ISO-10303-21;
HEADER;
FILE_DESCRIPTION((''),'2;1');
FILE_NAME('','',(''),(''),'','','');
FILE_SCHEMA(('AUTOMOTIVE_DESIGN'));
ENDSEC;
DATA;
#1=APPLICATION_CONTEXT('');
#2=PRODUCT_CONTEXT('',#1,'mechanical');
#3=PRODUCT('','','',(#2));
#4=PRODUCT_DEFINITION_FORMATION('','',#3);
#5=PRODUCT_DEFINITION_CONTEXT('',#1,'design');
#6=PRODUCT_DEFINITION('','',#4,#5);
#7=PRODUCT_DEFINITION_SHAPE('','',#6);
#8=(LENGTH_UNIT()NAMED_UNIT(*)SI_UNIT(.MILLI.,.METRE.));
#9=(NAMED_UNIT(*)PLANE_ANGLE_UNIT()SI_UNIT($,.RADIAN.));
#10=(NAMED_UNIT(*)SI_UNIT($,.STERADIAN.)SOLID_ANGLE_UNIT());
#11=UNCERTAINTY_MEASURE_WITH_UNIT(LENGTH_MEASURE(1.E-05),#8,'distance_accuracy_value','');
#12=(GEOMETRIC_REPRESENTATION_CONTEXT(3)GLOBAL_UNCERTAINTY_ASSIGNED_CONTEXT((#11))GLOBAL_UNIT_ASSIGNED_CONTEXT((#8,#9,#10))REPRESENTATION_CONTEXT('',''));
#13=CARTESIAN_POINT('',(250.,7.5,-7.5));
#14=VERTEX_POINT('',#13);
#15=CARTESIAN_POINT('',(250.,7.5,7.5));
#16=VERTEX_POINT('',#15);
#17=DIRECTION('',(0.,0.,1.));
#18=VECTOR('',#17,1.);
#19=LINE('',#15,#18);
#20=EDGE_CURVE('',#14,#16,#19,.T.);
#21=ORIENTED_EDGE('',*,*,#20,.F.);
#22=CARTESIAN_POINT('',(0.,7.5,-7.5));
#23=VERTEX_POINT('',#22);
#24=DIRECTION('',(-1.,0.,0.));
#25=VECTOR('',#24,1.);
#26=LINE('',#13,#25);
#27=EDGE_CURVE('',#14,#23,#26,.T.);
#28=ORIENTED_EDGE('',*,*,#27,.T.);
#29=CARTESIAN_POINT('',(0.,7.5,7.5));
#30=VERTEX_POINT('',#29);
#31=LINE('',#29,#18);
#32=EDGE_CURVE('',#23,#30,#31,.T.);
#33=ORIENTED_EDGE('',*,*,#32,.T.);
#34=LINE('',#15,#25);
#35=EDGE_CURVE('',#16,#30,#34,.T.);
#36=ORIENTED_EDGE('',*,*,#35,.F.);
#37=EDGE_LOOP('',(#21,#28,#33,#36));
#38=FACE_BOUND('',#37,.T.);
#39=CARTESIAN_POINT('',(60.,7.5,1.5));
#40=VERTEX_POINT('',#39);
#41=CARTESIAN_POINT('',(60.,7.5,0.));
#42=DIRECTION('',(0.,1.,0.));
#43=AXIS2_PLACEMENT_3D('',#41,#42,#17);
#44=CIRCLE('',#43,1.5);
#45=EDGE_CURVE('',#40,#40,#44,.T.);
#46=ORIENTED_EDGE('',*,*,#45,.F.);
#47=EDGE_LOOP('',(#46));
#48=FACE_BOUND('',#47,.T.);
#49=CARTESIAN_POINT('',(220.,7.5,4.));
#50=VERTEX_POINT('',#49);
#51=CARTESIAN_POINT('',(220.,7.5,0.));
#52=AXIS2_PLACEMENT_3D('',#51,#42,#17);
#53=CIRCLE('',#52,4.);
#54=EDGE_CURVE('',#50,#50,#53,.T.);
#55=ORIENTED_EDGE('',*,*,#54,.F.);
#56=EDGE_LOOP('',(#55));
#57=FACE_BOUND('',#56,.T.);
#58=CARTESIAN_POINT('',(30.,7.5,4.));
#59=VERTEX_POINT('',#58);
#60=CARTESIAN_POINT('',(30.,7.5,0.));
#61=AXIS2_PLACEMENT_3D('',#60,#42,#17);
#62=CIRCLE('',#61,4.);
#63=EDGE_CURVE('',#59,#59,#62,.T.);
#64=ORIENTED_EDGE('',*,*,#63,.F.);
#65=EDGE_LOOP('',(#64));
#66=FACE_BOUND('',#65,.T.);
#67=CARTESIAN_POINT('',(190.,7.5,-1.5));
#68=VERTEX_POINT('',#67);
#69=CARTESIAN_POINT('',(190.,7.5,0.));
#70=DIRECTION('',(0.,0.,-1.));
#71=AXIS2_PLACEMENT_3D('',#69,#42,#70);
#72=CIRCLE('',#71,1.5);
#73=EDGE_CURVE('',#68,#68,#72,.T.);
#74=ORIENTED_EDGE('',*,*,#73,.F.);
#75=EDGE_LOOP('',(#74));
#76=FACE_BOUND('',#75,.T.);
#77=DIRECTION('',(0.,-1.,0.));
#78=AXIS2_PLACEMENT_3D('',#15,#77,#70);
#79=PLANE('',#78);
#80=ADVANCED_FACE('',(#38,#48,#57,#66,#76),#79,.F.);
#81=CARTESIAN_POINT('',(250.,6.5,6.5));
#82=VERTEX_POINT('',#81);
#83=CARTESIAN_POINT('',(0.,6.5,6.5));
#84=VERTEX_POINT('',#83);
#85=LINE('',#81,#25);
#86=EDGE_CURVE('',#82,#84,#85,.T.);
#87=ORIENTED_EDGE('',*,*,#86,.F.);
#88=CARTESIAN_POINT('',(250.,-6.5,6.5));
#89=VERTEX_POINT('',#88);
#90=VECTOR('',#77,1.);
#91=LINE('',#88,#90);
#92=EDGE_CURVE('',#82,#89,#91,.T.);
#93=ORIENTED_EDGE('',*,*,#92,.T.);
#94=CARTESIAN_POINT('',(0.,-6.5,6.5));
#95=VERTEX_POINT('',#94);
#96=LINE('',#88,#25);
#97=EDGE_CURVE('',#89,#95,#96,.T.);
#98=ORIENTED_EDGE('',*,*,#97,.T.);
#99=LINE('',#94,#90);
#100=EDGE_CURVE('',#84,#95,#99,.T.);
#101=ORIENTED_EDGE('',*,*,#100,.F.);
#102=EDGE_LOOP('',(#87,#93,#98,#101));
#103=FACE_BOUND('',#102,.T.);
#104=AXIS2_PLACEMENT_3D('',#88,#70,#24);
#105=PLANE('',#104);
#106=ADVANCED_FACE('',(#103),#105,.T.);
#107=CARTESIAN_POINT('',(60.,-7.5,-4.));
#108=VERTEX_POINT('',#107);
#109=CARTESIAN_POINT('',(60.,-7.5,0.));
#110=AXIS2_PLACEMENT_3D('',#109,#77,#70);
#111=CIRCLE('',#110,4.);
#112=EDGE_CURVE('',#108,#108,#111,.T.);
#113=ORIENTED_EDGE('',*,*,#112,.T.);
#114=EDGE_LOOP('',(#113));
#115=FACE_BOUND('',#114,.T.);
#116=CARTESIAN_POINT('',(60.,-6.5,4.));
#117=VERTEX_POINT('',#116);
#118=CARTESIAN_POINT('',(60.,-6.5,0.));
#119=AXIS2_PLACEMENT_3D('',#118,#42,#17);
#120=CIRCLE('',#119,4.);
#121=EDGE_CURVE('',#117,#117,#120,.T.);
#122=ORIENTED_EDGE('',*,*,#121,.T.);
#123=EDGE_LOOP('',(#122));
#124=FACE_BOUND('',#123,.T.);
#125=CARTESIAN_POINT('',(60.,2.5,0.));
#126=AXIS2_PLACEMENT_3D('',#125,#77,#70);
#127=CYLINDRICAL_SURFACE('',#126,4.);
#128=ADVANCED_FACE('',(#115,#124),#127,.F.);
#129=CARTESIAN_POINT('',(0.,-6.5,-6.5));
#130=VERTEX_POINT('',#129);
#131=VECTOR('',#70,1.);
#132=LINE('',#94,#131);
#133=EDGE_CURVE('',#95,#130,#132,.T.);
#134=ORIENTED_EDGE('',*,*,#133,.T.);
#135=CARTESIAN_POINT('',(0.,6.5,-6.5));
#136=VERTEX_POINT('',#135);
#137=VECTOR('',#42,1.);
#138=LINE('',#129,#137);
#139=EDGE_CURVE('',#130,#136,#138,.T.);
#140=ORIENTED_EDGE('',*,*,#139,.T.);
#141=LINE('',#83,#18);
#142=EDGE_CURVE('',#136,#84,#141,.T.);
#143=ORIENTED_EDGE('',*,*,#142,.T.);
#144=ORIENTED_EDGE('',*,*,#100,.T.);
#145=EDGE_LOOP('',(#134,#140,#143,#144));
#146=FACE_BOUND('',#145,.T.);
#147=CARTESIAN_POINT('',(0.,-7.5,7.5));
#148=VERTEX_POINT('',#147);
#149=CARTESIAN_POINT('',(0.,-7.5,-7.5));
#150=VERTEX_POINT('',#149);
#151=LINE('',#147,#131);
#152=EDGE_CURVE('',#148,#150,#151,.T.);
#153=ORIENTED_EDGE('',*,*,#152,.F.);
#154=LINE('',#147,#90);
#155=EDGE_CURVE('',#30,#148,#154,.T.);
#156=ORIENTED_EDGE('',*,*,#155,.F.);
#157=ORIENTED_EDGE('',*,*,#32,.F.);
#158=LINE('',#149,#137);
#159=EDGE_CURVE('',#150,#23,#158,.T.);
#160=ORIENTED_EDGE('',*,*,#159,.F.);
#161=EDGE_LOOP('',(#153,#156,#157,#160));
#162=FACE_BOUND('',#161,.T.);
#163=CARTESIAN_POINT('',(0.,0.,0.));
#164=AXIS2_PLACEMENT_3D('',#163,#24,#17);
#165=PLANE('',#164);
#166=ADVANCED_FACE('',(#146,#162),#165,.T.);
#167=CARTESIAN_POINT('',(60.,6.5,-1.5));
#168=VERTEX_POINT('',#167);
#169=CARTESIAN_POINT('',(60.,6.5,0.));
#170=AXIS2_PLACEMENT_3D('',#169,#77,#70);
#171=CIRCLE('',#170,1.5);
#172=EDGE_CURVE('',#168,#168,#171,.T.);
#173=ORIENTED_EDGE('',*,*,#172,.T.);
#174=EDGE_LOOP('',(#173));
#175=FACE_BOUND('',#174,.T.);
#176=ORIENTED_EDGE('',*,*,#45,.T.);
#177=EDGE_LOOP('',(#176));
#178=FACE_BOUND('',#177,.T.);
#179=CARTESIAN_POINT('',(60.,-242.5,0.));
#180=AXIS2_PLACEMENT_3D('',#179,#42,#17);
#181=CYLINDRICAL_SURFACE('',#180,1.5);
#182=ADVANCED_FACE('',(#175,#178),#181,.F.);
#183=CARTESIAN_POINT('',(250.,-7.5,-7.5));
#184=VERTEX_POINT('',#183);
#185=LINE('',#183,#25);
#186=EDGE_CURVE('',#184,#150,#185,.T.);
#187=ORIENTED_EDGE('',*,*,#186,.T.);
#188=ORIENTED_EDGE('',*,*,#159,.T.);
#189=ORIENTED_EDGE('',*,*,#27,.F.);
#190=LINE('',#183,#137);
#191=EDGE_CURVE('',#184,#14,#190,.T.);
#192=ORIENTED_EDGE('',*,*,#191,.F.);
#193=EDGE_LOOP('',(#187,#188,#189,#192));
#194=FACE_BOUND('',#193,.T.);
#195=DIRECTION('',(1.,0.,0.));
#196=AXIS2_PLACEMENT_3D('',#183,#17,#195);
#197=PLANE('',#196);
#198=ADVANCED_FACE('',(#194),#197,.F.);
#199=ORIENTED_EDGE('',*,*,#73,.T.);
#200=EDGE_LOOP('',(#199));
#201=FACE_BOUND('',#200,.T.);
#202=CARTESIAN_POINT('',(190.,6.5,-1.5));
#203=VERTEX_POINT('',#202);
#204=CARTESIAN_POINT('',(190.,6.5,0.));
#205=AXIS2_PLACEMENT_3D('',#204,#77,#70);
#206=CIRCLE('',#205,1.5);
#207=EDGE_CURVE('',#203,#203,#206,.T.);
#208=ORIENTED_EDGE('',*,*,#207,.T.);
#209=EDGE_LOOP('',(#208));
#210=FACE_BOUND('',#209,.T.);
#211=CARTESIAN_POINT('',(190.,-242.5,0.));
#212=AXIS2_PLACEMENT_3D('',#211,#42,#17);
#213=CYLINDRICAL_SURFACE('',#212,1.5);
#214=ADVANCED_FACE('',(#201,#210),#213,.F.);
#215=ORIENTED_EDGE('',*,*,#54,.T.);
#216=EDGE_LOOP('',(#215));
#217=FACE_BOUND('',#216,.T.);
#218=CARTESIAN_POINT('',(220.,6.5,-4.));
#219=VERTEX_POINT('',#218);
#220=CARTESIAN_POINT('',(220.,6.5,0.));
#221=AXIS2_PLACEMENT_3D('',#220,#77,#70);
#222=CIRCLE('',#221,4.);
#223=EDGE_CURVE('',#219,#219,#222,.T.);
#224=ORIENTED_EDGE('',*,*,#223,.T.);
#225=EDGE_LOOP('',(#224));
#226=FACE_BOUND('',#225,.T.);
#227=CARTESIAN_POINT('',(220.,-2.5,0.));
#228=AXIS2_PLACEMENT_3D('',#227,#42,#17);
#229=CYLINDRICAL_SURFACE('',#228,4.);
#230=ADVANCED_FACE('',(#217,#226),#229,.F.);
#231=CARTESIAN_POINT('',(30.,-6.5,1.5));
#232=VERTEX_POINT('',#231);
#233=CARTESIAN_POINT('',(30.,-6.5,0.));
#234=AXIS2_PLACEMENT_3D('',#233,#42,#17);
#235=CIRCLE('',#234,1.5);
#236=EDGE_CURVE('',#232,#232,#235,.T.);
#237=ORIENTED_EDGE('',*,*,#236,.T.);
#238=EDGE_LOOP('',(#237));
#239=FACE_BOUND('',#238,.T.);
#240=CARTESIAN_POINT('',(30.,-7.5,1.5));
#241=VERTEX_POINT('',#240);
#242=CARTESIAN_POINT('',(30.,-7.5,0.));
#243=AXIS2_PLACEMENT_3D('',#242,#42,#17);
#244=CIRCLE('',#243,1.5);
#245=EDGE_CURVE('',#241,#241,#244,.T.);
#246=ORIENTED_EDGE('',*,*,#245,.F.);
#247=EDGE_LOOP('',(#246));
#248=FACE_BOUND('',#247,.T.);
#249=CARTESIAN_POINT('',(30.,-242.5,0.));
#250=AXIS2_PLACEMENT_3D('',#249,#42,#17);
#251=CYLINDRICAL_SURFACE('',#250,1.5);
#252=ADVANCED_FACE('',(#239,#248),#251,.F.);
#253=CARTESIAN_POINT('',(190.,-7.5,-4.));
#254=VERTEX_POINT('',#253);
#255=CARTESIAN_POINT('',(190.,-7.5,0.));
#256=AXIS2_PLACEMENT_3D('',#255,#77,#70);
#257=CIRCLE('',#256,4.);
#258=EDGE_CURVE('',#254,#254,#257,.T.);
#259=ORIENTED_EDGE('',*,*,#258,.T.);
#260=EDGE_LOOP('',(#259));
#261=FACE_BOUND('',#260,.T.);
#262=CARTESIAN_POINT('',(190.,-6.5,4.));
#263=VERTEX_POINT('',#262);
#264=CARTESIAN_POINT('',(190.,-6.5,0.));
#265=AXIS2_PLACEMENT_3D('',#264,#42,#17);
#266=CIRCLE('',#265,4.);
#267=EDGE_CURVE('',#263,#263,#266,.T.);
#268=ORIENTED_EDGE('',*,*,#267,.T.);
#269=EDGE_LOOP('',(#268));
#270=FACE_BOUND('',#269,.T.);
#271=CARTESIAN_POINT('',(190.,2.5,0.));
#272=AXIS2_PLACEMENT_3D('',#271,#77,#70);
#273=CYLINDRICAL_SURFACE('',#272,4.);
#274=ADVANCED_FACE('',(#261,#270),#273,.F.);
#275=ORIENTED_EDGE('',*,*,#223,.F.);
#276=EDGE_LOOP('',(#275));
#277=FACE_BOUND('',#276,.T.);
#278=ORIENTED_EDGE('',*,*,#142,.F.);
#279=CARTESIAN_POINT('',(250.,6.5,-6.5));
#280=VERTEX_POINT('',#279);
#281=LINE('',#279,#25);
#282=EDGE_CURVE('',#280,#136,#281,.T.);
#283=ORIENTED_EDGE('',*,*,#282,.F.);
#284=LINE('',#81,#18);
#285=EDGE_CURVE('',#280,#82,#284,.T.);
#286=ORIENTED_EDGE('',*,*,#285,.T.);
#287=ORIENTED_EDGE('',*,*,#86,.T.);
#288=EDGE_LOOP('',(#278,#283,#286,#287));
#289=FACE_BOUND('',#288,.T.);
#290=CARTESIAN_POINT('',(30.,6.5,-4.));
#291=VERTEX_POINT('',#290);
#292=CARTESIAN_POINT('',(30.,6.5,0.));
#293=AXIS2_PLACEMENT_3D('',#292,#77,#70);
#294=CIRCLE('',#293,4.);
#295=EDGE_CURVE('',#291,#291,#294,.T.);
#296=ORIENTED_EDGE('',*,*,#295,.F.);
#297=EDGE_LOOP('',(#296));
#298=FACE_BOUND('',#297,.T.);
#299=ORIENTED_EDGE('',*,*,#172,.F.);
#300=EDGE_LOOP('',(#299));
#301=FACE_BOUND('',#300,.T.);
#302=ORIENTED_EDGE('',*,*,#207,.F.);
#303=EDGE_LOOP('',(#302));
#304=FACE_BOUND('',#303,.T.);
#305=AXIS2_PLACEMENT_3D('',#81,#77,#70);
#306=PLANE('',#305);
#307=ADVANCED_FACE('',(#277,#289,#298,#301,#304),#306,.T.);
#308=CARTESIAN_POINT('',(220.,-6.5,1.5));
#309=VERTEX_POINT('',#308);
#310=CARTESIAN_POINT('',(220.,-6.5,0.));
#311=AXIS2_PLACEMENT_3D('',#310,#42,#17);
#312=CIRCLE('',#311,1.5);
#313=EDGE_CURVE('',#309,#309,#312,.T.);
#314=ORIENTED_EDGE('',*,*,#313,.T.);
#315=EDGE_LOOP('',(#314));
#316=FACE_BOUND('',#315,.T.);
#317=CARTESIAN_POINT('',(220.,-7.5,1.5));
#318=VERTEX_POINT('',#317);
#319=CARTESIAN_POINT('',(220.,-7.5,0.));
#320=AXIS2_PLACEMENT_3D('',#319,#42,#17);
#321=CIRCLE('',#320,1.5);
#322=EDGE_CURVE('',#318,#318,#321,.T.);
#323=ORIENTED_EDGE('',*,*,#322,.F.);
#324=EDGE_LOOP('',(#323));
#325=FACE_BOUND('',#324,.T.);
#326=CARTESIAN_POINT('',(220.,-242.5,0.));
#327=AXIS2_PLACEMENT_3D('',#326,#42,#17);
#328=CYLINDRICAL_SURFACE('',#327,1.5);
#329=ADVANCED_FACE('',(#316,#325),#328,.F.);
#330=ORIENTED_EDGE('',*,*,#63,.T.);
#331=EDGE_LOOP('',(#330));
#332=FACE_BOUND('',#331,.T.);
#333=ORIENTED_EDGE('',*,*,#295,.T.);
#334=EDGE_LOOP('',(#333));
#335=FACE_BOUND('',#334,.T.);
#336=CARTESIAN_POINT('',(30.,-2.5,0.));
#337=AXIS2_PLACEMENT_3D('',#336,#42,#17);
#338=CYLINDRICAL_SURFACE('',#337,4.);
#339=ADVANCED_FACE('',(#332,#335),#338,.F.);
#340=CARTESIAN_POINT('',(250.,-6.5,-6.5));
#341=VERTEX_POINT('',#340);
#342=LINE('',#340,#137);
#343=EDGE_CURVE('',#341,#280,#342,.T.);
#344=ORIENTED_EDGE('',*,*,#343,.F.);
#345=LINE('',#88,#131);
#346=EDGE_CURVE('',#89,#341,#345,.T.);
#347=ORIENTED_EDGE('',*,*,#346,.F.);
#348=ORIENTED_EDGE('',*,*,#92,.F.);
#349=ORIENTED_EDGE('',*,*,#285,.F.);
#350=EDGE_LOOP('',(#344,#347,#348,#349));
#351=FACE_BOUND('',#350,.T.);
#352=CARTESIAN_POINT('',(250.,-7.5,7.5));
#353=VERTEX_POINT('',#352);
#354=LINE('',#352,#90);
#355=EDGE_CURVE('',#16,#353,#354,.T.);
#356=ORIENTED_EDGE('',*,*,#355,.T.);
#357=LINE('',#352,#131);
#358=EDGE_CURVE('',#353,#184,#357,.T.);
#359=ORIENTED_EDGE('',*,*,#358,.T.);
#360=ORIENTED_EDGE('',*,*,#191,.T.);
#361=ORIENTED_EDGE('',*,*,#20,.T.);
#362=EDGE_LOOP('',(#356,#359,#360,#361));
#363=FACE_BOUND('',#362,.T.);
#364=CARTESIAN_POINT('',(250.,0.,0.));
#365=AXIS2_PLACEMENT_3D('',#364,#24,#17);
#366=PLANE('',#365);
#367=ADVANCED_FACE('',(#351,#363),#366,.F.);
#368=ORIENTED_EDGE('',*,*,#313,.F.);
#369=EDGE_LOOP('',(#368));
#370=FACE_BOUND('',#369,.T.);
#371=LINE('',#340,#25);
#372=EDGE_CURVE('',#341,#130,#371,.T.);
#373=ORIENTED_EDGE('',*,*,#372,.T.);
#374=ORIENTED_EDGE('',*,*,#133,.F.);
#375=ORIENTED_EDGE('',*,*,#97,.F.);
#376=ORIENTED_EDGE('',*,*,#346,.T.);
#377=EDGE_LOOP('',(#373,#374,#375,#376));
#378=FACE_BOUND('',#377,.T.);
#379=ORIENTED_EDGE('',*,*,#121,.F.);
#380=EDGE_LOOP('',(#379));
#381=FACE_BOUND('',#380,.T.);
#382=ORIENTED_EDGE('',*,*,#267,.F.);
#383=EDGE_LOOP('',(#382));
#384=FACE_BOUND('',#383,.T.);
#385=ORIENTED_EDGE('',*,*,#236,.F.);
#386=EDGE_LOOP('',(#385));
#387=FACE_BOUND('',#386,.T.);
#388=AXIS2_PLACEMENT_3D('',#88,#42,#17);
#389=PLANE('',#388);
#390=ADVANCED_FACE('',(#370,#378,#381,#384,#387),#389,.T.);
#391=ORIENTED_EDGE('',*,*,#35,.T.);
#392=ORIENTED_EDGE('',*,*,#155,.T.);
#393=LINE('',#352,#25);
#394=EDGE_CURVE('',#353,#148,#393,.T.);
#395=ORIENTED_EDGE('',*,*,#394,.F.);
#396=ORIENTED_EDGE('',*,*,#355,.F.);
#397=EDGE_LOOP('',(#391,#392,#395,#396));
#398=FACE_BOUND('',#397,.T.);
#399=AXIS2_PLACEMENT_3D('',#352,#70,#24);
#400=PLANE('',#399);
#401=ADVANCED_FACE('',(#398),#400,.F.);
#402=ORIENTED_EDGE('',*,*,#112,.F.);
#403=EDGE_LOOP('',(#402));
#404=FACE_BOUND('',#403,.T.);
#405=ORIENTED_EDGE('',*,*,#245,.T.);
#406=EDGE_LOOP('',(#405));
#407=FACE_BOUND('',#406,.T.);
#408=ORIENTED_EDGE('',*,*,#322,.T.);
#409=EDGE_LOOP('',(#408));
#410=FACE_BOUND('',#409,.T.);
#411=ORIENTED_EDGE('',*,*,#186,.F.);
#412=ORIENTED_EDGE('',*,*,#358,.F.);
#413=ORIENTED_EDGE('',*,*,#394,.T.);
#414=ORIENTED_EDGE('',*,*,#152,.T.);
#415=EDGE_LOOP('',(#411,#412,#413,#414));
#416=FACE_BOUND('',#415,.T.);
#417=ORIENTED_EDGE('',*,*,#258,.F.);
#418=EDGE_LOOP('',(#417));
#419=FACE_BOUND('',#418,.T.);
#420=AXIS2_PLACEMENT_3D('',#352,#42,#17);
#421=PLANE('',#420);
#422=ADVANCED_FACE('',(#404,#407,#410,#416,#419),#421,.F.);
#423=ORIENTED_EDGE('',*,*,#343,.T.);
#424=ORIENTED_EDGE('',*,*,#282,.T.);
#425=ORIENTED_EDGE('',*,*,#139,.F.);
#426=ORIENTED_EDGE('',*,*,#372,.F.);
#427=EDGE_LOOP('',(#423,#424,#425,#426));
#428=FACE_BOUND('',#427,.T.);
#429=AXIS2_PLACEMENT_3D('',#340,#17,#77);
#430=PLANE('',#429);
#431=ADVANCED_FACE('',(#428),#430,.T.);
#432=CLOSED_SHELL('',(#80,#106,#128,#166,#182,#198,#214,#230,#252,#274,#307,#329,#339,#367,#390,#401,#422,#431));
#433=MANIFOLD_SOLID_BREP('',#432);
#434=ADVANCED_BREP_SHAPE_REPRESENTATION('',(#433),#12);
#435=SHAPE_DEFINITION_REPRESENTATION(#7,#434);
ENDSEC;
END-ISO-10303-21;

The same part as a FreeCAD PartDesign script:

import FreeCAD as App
import Part
import Sketcher
from FreeCAD import Vector
Q = App.Units.Quantity


def add_polygon(sketch, points):
    """Adds a closed chain of lines whose ends are joined by coincident constraints."""
    first, n = sketch.GeometryCount, len(points)
    for a, b in zip(points, points[1:] + points[:1]):
        sketch.addGeometry(Part.LineSegment(App.Vector(*a, 0), App.Vector(*b, 0)), False)
    for i in range(n):
        sketch.addConstraint(Sketcher.Constraint("Coincident", first + i, 2, first + (i + 1) % n, 1))

doc = App.newDocument("Part")
params = doc.addObject("Spreadsheet::Sheet", "Params")
for row, (alias, value) in enumerate([
    ("sketch1_width", "15 mm"),
    ("sketch1_width2", "13 mm"),
    ("pad1_length", "250 mm"),
    ("sketch2_diameter", "3 mm"),
    ("pocket1_length", "250 mm"),
    ("sketch3_diameter", "8 mm"),
    ("pocket2_length", "10 mm"),
    ("sketch4_diameter", "8 mm"),
    ("pocket3_length", "10 mm"),
], start=1):
    params.set(f"A{row}", alias)
    params.set(f"B{row}", "=" + value)
    params.setAlias(f"B{row}", alias)

body = doc.addObject("PartDesign::Body", "Body")

# Sketch on YZ plane
sketch1 = doc.addObject("Sketcher::SketchObject", "Sketch")
body.addObject(sketch1)
sketch1.AttachmentSupport = (doc.YZ_Plane, [""])
sketch1.MapMode = "FlatFace"
add_polygon(sketch1, [(8, 8), (-8, 8), (-8, -8), (8, -8)])  # lines 0-3
add_polygon(sketch1, [(-6, -6), (-6, 6), (6, 6), (6, -6)])  # lines 4-7
sketch1.addConstraint([
    Sketcher.Constraint("Horizontal", 0),
    Sketcher.Constraint("Vertical", 1),
    Sketcher.Constraint("Horizontal", 2),
    Sketcher.Constraint("Vertical", 3),
    Sketcher.Constraint("Vertical", 4),
    Sketcher.Constraint("Horizontal", 5),
    Sketcher.Constraint("Vertical", 6),
    Sketcher.Constraint("Horizontal", 7),
    Sketcher.Constraint("Symmetric", 0, 2, 2, 2, -1, 1),
    Sketcher.Constraint("Symmetric", 4, 2, 6, 2, -1, 1),
    Sketcher.Constraint("Equal", 2, 1),
    Sketcher.Constraint("Equal", 7, 4),
    Sketcher.Constraint("DistanceX", 0, 2, 0, 1, Q("15 mm")),
    Sketcher.Constraint("DistanceX", 5, 1, 5, 2, Q("13 mm")),
])
sketch1.setExpression("Constraints[20]", "Params.sketch1_width")
sketch1.setExpression("Constraints[21]", "Params.sketch1_width2")
pad1 = doc.addObject("PartDesign::Pad", "Pad")
body.addObject(pad1)
pad1.Profile = sketch1
pad1.setExpression("Length", "Params.pad1_length")

# Sketch on XZ plane
sketch2 = doc.addObject("Sketcher::SketchObject", "Sketch001")
body.addObject(sketch2)
sketch2.AttachmentSupport = (doc.XZ_Plane, [""])
sketch2.MapMode = "FlatFace"
sketch2.AttachmentOffset = App.Placement(Vector(0, 0, -7.5), App.Rotation())
sketch2.addGeometry([
    Part.Circle(Vector(30, 0, 0), Vector(0, 0, 1), 1.5),
    Part.Circle(Vector(60, 0, 0), Vector(0, 0, 1), 1.5),
    Part.Circle(Vector(190, 0, 0), Vector(0, 0, 1), 1.5),
    Part.Circle(Vector(220, 0, 0), Vector(0, 0, 1), 1.5),
], False)
sketch2.addConstraint([
    Sketcher.Constraint("Equal", 0, 1),
    Sketcher.Constraint("Equal", 1, 2),
    Sketcher.Constraint("Equal", 2, 3),
    Sketcher.Constraint("PointOnObject", 0, 3, -1),
    Sketcher.Constraint("PointOnObject", 1, 3, -1),
    Sketcher.Constraint("PointOnObject", 2, 3, -1),
    Sketcher.Constraint("PointOnObject", 3, 3, -1),
    Sketcher.Constraint("Diameter", 0, Q("3 mm")),
    Sketcher.Constraint("DistanceX", -1, 1, 0, 3, Q("30 mm")),
    Sketcher.Constraint("DistanceX", -1, 1, 1, 3, Q("60 mm")),
    Sketcher.Constraint("DistanceX", -1, 1, 2, 3, Q("190 mm")),
    Sketcher.Constraint("DistanceX", -1, 1, 3, 3, Q("220 mm")),
])
sketch2.setExpression("Constraints[7]", "Params.sketch2_diameter")
pocket1 = doc.addObject("PartDesign::Pocket", "Pocket")
body.addObject(pocket1)
pocket1.Profile = sketch2
pocket1.setExpression("Length", "Params.pocket1_length")
pocket1.Reversed = True

# Sketch on XZ plane
sketch3 = doc.addObject("Sketcher::SketchObject", "Sketch002")
body.addObject(sketch3)
sketch3.AttachmentSupport = (doc.XZ_Plane, [""])
sketch3.MapMode = "FlatFace"
sketch3.AttachmentOffset = App.Placement(Vector(0, 0, -7.5), App.Rotation())
sketch3.addGeometry([
    Part.Circle(Vector(30, 0, 0), Vector(0, 0, 1), 4),
    Part.Circle(Vector(220, 0, 0), Vector(0, 0, 1), 4),
], False)
sketch3.addConstraint([
    Sketcher.Constraint("Equal", 0, 1),
    Sketcher.Constraint("PointOnObject", 0, 3, -1),
    Sketcher.Constraint("PointOnObject", 1, 3, -1),
    Sketcher.Constraint("Diameter", 0, Q("8 mm")),
    Sketcher.Constraint("DistanceX", -1, 1, 0, 3, Q("30 mm")),
    Sketcher.Constraint("DistanceX", -1, 1, 1, 3, Q("220 mm")),
])
sketch3.setExpression("Constraints[3]", "Params.sketch3_diameter")
pocket2 = doc.addObject("PartDesign::Pocket", "Pocket001")
body.addObject(pocket2)
pocket2.Profile = sketch3
pocket2.setExpression("Length", "Params.pocket2_length")
pocket2.Reversed = True

# Sketch on XZ plane
sketch4 = doc.addObject("Sketcher::SketchObject", "Sketch003")
body.addObject(sketch4)
sketch4.AttachmentSupport = (doc.XZ_Plane, [""])
sketch4.MapMode = "FlatFace"
sketch4.AttachmentOffset = App.Placement(Vector(0, 0, 7.5), App.Rotation())
sketch4.addGeometry([
    Part.Circle(Vector(60, 0, 0), Vector(0, 0, 1), 4),
    Part.Circle(Vector(190, 0, 0), Vector(0, 0, 1), 4),
], False)
sketch4.addConstraint([
    Sketcher.Constraint("Equal", 0, 1),
    Sketcher.Constraint("PointOnObject", 0, 3, -1),
    Sketcher.Constraint("PointOnObject", 1, 3, -1),
    Sketcher.Constraint("Diameter", 0, Q("8 mm")),
    Sketcher.Constraint("DistanceX", -1, 1, 0, 3, Q("60 mm")),
    Sketcher.Constraint("DistanceX", -1, 1, 1, 3, Q("190 mm")),
])
sketch4.setExpression("Constraints[3]", "Params.sketch4_diameter")
pocket3 = doc.addObject("PartDesign::Pocket", "Pocket002")
body.addObject(pocket3)
pocket3.Profile = sketch4
pocket3.setExpression("Length", "Params.pocket3_length")

doc.recompute()
